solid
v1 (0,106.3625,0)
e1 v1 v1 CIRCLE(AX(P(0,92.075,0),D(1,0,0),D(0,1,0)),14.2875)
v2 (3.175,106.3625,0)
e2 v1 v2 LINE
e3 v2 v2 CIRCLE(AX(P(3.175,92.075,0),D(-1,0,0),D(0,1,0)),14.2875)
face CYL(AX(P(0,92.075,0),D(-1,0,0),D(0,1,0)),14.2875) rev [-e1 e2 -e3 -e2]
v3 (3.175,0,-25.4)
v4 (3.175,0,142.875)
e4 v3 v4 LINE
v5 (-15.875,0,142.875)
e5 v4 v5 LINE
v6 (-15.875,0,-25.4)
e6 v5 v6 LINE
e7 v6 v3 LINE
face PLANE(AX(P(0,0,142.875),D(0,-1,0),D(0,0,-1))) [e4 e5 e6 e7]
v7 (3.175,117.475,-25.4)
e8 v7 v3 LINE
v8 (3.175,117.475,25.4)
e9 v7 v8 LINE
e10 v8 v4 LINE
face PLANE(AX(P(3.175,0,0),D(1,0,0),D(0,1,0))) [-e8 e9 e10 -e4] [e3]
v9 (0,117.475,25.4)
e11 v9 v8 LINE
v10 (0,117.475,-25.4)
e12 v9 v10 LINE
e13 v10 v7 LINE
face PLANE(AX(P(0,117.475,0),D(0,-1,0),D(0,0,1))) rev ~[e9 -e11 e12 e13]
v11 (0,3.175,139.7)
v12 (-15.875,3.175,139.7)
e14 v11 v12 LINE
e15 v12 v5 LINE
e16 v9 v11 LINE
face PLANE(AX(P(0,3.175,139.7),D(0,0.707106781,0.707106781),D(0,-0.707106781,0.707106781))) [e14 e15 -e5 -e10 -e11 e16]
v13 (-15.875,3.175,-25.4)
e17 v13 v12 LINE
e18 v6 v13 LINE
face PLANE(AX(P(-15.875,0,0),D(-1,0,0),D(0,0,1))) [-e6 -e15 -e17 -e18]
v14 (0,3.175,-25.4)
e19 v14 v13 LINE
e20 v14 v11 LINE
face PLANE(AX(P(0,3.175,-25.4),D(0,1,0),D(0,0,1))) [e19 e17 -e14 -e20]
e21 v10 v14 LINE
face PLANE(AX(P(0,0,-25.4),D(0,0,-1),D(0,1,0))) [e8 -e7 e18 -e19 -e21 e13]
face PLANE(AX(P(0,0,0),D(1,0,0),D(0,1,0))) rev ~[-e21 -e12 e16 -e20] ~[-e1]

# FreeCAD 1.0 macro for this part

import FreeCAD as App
import Part
import Sketcher
from FreeCAD import Vector
Q = App.Units.Quantity


def add_polygon(sketch, points):
    """Adds a closed chain of lines whose ends are joined by coincident constraints."""
    first, n = sketch.GeometryCount, len(points)
    for a, b in zip(points, points[1:] + points[:1]):
        sketch.addGeometry(Part.LineSegment(App.Vector(*a, 0), App.Vector(*b, 0)), False)
    for i in range(n):
        sketch.addConstraint(Sketcher.Constraint("Coincident", first + i, 2, first + (i + 1) % n, 1))

doc = App.newDocument("Part")
body = doc.addObject("PartDesign::Body", "Body")

# Sketch on YZ plane
sketch1 = body.newObject("Sketcher::SketchObject", "Sketch")
sketch1.AttachmentSupport = (doc.getObject("YZ_Plane"), [""])
sketch1.MapMode = "FlatFace"
add_polygon(sketch1, [(0, 143), (0, -25), (117, -25), (117, 25)])  # lines 0-3
sketch1.addGeometry(Part.Circle(Vector(92, 0, 0), Vector(0, 0, 1), 14), False)  # 4
sketch1.addConstraint(Sketcher.Constraint("Vertical", 0))
sketch1.addConstraint(Sketcher.Constraint("Horizontal", 1))
sketch1.addConstraint(Sketcher.Constraint("Vertical", 2))
sketch1.addConstraint(Sketcher.Constraint("PointOnObject", 4, 3, -1))
sketch1.addConstraint(Sketcher.Constraint("PointOnObject", 0, 2, -2))
sketch1.addConstraint(Sketcher.Constraint("Diameter", 4, Q("1.125 in")))
sketch1.addConstraint(Sketcher.Constraint("DistanceY", 0, 2, -1, 1, Q("1 in")))
sketch1.addConstraint(Sketcher.Constraint("DistanceY", -1, 1, 2, 2, Q("1 in")))
sketch1.addConstraint(Sketcher.Constraint("Angle", 3, Q("135 deg")))
sketch1.addConstraint(Sketcher.Constraint("DistanceX", 4, 3, 1, 2, Q("1 in")))
sketch1.addConstraint(Sketcher.Constraint("DistanceX", -1, 1, 4, 3, Q("3.625 in")))
pad1 = body.newObject("PartDesign::Pad", "Pad")
pad1.Profile = sketch1
pad1.Length = Q("0.125 in")

# Sketch on YZ plane
sketch2 = body.newObject("Sketcher::SketchObject", "Sketch001")
sketch2.AttachmentSupport = (doc.getObject("YZ_Plane"), [""])
sketch2.MapMode = "FlatFace"
add_polygon(sketch2, [(0, -25.4), (0, 142.9), (3.2, 139.7), (3.2, -25.4)])  # lines 0-3
sketch2.addConstraint(Sketcher.Constraint("Vertical", 0))
sketch2.addConstraint(Sketcher.Constraint("Vertical", 2))
sketch2.addConstraint(Sketcher.Constraint("Horizontal", 3))
sketch2.addConstraint(Sketcher.Constraint("PointOnObject", 0, 2, -2))
sketch2.addConstraint(Sketcher.Constraint("DistanceX", 3, 2, 3, 1, Q("0.125 in")))
sketch2.addConstraint(Sketcher.Constraint("DistanceY", 2, 2, 2, 1, Q("6.5 in")))
sketch2.addConstraint(Sketcher.Constraint("DistanceY", 2, 2, -1, 1, Q("1 in")))
sketch2.addConstraint(Sketcher.Constraint("Angle", 1, Q("-45 deg")))
pad2 = body.newObject("PartDesign::Pad", "Pad001")
pad2.Profile = sketch2
pad2.Length = Q("0.625 in")
pad2.Reversed = True

doc.recompute()
